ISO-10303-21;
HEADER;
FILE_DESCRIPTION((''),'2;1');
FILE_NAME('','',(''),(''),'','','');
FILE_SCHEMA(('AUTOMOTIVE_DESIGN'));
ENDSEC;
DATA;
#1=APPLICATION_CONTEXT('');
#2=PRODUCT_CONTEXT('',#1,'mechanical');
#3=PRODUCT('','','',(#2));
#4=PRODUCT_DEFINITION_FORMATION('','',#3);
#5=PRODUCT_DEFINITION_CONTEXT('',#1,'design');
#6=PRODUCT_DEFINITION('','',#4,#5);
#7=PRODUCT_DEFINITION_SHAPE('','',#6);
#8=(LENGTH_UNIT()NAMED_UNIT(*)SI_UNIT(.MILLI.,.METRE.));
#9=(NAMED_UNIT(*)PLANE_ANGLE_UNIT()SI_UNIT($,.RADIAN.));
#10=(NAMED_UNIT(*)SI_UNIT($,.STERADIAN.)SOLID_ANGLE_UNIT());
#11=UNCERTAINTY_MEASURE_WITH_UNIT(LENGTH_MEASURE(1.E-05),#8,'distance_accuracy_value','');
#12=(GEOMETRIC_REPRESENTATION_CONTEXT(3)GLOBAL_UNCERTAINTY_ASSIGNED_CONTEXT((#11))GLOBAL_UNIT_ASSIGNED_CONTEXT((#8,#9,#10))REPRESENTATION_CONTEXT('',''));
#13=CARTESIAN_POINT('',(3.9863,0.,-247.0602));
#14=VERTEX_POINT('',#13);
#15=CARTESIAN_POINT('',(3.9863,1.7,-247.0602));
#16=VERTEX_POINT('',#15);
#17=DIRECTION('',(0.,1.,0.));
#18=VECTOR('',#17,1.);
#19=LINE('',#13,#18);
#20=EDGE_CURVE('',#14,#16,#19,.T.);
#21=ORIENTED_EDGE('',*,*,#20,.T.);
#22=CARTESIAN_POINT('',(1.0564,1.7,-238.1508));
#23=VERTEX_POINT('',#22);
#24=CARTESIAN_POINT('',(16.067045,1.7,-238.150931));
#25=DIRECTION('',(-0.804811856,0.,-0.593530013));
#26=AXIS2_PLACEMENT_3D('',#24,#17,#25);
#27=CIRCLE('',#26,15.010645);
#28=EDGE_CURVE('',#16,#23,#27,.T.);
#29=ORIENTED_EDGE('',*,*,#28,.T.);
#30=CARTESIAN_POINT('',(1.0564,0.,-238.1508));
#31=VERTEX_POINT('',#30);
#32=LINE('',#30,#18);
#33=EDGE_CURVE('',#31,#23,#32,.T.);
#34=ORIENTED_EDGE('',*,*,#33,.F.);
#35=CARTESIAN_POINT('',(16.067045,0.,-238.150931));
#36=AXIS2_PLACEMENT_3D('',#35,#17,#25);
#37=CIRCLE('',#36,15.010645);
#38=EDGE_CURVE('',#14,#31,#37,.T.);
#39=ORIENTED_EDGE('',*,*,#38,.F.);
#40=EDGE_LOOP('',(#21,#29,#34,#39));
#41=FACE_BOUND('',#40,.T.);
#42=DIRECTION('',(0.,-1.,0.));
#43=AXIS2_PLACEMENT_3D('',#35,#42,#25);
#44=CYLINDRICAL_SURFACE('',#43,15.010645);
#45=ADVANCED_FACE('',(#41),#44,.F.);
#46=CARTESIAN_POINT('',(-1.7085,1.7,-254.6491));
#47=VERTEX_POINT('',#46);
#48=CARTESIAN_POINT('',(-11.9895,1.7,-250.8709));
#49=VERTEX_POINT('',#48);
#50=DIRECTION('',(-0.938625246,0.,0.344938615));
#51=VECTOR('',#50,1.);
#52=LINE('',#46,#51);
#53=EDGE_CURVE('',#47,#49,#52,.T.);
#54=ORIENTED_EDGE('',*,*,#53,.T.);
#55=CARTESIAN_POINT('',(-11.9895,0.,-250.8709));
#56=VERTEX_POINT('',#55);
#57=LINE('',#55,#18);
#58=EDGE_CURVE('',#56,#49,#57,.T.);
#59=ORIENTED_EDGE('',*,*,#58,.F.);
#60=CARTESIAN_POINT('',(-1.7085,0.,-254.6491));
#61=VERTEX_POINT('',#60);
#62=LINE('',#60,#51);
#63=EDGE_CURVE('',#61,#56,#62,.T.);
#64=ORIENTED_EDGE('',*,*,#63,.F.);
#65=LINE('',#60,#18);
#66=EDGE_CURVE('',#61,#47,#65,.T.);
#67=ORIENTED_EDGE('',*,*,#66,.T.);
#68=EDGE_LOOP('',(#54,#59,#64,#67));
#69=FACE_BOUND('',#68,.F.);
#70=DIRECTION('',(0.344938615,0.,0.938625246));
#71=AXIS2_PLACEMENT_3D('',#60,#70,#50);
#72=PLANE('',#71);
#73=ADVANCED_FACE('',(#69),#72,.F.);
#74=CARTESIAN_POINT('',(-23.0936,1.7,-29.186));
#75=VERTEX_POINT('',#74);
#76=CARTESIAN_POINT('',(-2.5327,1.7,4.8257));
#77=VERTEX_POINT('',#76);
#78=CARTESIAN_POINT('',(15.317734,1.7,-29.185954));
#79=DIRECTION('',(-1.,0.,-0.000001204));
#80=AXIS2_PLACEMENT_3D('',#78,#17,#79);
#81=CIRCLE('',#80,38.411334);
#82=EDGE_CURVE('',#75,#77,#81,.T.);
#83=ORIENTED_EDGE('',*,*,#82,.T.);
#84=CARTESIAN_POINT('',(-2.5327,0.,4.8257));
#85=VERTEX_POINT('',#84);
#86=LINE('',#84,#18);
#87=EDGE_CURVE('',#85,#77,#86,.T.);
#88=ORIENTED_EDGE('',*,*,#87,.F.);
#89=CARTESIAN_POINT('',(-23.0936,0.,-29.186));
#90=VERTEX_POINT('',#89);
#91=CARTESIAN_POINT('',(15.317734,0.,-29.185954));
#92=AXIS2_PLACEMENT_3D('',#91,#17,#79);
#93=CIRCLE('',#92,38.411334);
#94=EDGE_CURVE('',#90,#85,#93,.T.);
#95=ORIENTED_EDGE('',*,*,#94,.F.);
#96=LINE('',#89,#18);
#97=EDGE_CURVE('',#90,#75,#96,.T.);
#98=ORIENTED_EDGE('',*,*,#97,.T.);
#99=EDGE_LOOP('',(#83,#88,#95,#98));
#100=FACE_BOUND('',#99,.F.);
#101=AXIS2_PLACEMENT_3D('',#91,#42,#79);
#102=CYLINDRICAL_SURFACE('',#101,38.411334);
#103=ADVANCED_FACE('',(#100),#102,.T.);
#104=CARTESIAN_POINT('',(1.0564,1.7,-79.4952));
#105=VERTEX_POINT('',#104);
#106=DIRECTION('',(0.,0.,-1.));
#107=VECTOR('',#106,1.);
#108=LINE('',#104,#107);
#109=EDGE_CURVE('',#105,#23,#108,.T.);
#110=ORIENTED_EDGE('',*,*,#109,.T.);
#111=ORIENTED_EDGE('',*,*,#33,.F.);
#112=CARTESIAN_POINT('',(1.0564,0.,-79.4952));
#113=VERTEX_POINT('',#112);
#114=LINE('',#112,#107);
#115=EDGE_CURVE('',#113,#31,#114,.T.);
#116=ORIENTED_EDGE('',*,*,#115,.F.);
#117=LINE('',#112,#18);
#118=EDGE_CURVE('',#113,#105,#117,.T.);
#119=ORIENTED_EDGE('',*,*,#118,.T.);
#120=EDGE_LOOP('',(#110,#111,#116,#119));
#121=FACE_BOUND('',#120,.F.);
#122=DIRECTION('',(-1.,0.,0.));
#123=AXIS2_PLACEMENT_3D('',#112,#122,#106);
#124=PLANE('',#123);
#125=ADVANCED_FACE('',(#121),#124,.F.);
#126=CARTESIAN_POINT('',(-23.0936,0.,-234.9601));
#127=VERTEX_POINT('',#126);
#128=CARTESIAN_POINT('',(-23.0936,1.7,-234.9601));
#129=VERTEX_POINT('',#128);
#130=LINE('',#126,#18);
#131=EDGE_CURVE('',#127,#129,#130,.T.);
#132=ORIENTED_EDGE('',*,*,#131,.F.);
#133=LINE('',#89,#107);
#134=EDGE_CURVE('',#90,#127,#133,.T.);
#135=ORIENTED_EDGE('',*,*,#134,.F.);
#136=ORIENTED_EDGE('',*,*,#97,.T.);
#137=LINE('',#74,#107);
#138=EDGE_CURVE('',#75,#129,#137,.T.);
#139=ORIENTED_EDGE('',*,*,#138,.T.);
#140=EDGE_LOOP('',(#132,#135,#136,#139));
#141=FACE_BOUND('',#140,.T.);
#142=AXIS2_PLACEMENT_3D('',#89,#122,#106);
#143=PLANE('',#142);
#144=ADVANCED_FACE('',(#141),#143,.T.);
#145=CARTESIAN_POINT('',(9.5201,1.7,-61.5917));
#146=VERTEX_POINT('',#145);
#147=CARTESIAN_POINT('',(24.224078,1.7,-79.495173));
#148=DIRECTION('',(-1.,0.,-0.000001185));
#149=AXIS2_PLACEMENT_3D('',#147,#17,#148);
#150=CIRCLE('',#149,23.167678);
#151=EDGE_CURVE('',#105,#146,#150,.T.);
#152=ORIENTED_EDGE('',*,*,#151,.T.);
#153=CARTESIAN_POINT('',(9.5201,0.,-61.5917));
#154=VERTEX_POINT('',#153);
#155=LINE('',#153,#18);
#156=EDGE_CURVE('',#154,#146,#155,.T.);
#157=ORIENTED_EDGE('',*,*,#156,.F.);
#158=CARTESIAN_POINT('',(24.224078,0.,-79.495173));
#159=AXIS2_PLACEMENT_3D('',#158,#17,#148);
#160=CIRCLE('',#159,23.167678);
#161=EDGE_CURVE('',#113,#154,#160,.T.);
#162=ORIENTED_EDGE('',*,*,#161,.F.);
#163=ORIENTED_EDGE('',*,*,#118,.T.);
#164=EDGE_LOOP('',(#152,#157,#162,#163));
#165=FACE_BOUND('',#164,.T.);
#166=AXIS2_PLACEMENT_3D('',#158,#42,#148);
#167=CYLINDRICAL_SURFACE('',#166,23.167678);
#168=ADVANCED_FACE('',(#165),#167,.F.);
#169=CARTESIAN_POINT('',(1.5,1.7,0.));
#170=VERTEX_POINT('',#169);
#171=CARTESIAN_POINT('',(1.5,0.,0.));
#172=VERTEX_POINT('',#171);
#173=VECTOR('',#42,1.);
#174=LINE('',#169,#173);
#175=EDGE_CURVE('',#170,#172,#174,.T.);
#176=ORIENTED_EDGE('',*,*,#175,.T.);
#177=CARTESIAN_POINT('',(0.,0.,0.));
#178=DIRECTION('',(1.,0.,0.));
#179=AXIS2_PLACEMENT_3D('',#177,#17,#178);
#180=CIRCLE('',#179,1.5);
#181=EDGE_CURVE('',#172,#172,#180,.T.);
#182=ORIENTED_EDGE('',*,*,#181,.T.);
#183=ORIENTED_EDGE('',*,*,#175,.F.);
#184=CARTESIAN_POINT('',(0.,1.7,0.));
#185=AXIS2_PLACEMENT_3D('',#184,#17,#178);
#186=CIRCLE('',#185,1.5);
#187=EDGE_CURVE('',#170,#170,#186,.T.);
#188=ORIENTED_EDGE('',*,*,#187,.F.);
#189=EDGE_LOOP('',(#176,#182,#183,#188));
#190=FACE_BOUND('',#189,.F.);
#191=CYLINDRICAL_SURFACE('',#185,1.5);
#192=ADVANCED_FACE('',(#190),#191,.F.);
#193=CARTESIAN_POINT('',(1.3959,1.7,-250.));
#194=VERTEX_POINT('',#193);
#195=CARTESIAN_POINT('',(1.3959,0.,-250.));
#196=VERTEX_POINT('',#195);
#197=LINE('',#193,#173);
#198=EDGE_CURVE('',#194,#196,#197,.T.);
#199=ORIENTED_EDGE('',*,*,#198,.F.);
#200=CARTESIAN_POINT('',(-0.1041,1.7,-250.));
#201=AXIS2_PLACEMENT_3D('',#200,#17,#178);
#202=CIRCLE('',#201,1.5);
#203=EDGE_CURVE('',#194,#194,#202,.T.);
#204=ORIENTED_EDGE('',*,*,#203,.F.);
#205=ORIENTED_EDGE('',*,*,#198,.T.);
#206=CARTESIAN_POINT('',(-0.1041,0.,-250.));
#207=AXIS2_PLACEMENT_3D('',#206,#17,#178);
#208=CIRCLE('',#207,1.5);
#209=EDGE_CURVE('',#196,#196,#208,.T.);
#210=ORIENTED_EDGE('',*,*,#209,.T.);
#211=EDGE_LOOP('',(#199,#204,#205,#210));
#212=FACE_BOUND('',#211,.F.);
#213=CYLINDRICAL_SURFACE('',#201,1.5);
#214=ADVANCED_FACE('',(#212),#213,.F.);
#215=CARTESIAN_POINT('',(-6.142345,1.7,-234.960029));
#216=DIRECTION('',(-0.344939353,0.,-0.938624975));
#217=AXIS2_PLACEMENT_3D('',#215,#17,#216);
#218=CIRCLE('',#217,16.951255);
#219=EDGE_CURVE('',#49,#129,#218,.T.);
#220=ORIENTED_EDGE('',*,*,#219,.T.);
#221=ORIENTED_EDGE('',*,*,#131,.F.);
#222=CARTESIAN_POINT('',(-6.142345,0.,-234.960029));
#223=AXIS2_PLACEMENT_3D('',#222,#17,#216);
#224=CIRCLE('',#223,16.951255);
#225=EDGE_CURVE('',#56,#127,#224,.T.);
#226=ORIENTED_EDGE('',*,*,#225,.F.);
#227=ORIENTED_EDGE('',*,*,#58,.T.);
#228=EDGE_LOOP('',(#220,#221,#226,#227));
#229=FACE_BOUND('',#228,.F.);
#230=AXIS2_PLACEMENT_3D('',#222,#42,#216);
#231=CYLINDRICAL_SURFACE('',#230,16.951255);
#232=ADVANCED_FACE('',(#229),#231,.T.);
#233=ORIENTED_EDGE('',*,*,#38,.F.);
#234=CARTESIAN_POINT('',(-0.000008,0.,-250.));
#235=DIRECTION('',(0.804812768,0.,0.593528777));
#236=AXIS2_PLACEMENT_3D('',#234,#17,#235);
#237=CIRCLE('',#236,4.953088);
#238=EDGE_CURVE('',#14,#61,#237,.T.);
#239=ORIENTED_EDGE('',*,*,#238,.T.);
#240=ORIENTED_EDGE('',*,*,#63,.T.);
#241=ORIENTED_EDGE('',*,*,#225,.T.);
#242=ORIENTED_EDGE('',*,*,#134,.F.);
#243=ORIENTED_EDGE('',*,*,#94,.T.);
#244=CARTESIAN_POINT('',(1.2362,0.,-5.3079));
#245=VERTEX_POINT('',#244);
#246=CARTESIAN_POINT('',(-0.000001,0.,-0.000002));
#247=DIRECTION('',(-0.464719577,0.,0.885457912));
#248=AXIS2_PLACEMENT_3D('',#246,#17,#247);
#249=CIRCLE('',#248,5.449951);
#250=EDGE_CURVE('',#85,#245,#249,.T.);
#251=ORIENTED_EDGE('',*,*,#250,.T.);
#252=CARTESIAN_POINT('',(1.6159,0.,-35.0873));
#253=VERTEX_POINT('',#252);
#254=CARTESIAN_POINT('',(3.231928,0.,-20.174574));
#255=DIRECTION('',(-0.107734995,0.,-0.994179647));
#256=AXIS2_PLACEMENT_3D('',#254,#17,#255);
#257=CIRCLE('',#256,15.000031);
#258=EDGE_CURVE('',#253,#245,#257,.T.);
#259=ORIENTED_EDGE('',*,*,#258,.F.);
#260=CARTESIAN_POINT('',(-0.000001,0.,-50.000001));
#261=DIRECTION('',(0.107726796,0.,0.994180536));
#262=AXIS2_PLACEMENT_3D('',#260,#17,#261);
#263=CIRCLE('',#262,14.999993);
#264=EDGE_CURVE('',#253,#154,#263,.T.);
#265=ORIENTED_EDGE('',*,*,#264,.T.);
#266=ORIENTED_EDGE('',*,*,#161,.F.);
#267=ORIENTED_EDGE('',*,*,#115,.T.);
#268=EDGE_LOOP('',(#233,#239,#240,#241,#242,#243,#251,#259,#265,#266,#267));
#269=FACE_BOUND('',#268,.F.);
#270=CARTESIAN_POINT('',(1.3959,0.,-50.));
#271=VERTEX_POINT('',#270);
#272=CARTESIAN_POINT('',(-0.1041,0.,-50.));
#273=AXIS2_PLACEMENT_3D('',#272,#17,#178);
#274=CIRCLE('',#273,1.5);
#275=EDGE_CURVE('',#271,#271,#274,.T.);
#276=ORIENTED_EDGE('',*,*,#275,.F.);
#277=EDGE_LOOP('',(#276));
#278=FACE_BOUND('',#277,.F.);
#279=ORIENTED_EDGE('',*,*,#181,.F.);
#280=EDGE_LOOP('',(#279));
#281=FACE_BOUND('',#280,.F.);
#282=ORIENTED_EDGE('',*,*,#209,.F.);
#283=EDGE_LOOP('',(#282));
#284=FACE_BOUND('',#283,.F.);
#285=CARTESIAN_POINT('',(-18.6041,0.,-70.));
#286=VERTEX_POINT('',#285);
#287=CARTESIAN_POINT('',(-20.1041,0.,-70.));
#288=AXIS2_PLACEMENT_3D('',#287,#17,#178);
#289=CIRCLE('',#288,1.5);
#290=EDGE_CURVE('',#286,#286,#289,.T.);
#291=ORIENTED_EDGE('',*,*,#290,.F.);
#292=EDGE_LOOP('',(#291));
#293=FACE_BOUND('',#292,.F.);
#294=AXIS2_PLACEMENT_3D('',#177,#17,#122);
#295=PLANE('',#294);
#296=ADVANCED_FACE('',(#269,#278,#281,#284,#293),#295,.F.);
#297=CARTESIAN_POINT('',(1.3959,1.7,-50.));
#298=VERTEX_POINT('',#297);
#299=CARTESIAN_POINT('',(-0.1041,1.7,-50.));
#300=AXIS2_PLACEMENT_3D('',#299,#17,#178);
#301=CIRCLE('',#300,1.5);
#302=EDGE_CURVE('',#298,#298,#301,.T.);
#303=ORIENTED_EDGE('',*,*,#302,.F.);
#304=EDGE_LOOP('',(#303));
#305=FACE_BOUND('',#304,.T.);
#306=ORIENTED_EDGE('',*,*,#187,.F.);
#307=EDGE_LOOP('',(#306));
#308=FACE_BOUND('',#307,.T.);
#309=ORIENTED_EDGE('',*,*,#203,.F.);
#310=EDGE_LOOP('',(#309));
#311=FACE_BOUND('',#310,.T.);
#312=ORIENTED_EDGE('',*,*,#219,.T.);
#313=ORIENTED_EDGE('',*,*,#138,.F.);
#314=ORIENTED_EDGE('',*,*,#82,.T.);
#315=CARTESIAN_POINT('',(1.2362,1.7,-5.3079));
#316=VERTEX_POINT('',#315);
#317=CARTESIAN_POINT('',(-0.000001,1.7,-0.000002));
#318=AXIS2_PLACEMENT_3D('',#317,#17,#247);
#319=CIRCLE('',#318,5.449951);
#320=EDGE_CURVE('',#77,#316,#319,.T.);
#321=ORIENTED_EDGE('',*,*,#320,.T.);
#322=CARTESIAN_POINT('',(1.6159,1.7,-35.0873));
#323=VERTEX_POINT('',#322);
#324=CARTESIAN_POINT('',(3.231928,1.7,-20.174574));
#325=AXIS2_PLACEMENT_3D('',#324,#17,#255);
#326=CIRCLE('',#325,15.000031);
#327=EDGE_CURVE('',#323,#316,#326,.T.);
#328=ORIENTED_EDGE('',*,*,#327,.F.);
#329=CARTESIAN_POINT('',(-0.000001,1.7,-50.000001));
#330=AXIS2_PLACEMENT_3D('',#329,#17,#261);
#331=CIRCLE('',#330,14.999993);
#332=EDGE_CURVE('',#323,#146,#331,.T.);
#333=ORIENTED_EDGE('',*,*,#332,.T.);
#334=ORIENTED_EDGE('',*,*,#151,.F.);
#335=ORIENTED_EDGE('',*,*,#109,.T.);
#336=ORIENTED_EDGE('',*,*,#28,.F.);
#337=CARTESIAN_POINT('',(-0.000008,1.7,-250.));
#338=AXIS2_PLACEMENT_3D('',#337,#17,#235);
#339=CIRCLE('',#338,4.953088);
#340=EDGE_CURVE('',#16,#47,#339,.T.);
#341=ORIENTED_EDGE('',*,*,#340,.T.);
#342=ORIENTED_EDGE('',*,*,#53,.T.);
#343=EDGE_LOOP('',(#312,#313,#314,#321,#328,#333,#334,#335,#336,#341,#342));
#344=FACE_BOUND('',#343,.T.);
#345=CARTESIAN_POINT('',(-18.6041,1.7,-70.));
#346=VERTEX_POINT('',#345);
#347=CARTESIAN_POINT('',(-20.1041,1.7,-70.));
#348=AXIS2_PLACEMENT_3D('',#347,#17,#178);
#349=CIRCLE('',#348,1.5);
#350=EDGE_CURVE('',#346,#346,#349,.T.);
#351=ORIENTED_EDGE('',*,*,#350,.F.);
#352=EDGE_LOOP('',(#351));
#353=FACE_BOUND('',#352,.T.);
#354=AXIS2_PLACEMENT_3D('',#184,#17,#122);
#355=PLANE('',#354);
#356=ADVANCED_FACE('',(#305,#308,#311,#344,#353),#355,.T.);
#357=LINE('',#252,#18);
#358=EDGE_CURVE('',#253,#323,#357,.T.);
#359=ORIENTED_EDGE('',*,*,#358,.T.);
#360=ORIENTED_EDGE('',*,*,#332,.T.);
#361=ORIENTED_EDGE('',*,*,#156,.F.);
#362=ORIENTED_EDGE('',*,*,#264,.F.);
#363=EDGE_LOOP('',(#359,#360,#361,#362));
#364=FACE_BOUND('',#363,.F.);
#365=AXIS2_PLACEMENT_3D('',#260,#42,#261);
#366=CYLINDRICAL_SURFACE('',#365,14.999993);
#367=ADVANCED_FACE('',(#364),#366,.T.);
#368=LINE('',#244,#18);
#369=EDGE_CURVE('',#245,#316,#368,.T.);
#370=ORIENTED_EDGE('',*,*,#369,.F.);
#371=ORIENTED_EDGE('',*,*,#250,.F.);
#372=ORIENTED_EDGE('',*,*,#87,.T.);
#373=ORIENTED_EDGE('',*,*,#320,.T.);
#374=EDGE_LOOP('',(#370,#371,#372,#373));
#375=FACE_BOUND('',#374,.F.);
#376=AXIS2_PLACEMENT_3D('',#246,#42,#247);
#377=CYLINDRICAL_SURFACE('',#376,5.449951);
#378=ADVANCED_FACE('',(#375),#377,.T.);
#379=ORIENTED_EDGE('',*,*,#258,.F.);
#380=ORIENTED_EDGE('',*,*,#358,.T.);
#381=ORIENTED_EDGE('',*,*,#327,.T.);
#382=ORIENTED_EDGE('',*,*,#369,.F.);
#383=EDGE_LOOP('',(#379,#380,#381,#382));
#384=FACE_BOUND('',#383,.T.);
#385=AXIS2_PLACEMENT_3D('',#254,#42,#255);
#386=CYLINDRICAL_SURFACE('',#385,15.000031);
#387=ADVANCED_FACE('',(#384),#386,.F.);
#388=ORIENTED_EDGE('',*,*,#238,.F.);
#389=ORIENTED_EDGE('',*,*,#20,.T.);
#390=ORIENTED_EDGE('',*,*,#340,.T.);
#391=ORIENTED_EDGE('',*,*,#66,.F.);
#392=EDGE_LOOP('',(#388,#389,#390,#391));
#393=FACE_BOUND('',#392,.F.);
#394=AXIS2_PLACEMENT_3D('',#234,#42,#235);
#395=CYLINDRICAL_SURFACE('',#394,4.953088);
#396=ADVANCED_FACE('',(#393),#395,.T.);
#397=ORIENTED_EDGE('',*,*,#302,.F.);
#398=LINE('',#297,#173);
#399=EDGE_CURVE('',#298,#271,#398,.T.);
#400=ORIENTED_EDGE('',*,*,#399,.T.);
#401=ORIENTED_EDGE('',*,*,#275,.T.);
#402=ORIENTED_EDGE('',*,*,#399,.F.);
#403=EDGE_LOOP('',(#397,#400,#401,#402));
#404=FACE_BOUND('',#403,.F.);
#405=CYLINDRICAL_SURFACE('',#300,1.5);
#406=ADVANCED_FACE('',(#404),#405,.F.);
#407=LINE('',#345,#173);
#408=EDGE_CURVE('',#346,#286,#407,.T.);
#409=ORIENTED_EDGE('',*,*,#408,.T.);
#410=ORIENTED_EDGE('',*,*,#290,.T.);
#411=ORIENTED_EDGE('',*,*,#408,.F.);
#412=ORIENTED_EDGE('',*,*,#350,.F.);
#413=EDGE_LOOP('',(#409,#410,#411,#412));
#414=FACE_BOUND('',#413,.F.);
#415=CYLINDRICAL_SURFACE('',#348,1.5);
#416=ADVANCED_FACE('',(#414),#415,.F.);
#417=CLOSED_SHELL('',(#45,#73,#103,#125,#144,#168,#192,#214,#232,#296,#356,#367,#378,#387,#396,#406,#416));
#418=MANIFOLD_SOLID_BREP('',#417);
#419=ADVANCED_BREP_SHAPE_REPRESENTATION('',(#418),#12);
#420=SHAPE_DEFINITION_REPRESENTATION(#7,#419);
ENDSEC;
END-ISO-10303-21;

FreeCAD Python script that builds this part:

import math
import FreeCAD as App
import Part
import Sketcher
from FreeCAD import Vector

doc = App.newDocument("Part")
body = doc.addObject("PartDesign::Body", "Body")

# Sketch on XZ plane
sketch1 = body.newObject("Sketcher::SketchObject", "Sketch")
sketch1.AttachmentSupport = (doc.getObject("XZ_Plane"), [""])
sketch1.MapMode = "FlatFace"
sketch1.addGeometry(Part.ArcOfCircle(Part.Circle(Vector(15.3, -29.2, 0), Vector(0, 0, 1), 38.4), math.radians(118), math.radians(180)), False)
sketch1.addGeometry(Part.ArcOfCircle(Part.Circle(Vector(0, 0, 0), Vector(0, 0, 1), 5.4), math.radians(-77), math.radians(118)), False)
sketch1.addGeometry(Part.ArcOfCircle(Part.Circle(Vector(3.2, -20.2, 0), Vector(0, 0, 1), 15), math.radians(98), math.radians(264)), False)
sketch1.addGeometry(Part.ArcOfCircle(Part.Circle(Vector(0, -50, 0), Vector(0, 0, 1), 15), math.radians(-51), math.radians(84)), False)
sketch1.addGeometry(Part.ArcOfCircle(Part.Circle(Vector(24.2, -79.5, 0), Vector(0, 0, 1), 23.2), math.radians(129), math.radians(180)), False)
sketch1.addGeometry(Part.LineSegment(Vector(1.1, -79.5, 0), Vector(1.1, -238.2, 0)), False)
sketch1.addGeometry(Part.ArcOfCircle(Part.Circle(Vector(16.1, -238.2, 0), Vector(0, 0, 1), 15), math.radians(180), math.radians(216)), False)
sketch1.addGeometry(Part.ArcOfCircle(Part.Circle(Vector(0, -250, 0), Vector(0, 0, 1), 5), math.radians(-110), math.radians(36)), False)
sketch1.addGeometry(Part.LineSegment(Vector(-1.7, -254.6, 0), Vector(-12, -250.9, 0)), False)
sketch1.addGeometry(Part.ArcOfCircle(Part.Circle(Vector(-6.1, -235, 0), Vector(0, 0, 1), 17), math.radians(180), math.radians(250)), False)
sketch1.addGeometry(Part.LineSegment(Vector(-23.1, -235, 0), Vector(-23.1, -29.2, 0)), False)
sketch1.addConstraint(Sketcher.Constraint("Tangent", 0, 1, 1, 2))
sketch1.addConstraint(Sketcher.Constraint("Coincident", 1, 1, 2, 1))
sketch1.addConstraint(Sketcher.Constraint("Tangent", 2, 2, 3, 2))
sketch1.addConstraint(Sketcher.Constraint("Tangent", 3, 1, 4, 1))
sketch1.addConstraint(Sketcher.Constraint("Tangent", 4, 2, 5, 1))
sketch1.addConstraint(Sketcher.Constraint("Tangent", 5, 2, 6, 1))
sketch1.addConstraint(Sketcher.Constraint("Tangent", 6, 2, 7, 2))
sketch1.addConstraint(Sketcher.Constraint("Tangent", 7, 1, 8, 1))
sketch1.addConstraint(Sketcher.Constraint("Tangent", 8, 2, 9, 2))
sketch1.addConstraint(Sketcher.Constraint("Tangent", 9, 1, 10, 1))
sketch1.addConstraint(Sketcher.Constraint("Tangent", 10, 2, 0, 2))
sketch1.addConstraint(Sketcher.Constraint("Vertical", 5))
sketch1.addConstraint(Sketcher.Constraint("Vertical", 10))
sketch1.addConstraint(Sketcher.Constraint("Coincident", 1, 3, -1, 1))
sketch1.addConstraint(Sketcher.Constraint("Equal", 2, 3))
sketch1.addConstraint(Sketcher.Constraint("PointOnObject", 3, 3, -2))
sketch1.addConstraint(Sketcher.Constraint("PointOnObject", 7, 3, -2))
sketch1.addConstraint(Sketcher.Constraint("Radius", 2, 15.0))
sketch1.addConstraint(Sketcher.Constraint("Radius", 1, 5.45))
sketch1.addConstraint(Sketcher.Constraint("DistanceY", 3, 3, -1, 1, 50.0))
sketch1.addConstraint(Sketcher.Constraint("DistanceY", 7, 3, 3, 3, 200.0))
sketch1.addConstraint(Sketcher.Constraint("Radius", 6, 15.011))
sketch1.addConstraint(Sketcher.Constraint("Radius", 7, 4.953))
sketch1.addConstraint(Sketcher.Constraint("Radius", 0, 38.4115))
sketch1.addConstraint(Sketcher.Constraint("Radius", 4, 23.1678))
sketch1.addConstraint(Sketcher.Constraint("Radius", 9, 16.9512))
sketch1.addConstraint(Sketcher.Constraint("DistanceY", 6, 2, 9, 3, 12.1))
sketch1.addConstraint(Sketcher.Constraint("DistanceY", 10, 1, 10, 2, 205.774))
sketch1.addConstraint(Sketcher.Constraint("DistanceY", 9, 3, -1, 1, 234.96))
sketch1.addConstraint(Sketcher.Constraint("DistanceX", -1, 1, 2, 3, 3.232))
pad1 = body.newObject("PartDesign::Pad", "Pad")
pad1.Profile = sketch1
pad1.Length = 1.7
pad1.Reversed = True

# Sketch on XZ plane
sketch2 = body.newObject("Sketcher::SketchObject", "Sketch001")
sketch2.AttachmentSupport = (doc.getObject("XZ_Plane"), [""])
sketch2.MapMode = "FlatFace"
sketch2.AttachmentOffset = App.Placement(Vector(0, 0, -1.7), App.Rotation())
sketch2.addGeometry(Part.Circle(Vector(0, 0, 0), Vector(0, 0, 1), 1.5), False)
sketch2.addGeometry(Part.Circle(Vector(-0.1, -50, 0), Vector(0, 0, 1), 1.5), False)
sketch2.addGeometry(Part.Circle(Vector(-20.1, -70, 0), Vector(0, 0, 1), 1.5), False)
sketch2.addGeometry(Part.Circle(Vector(-0.1, -250, 0), Vector(0, 0, 1), 1.5), False)
sketch2.addConstraint(Sketcher.Constraint("Coincident", 0, 3, -1, 1))
sketch2.addConstraint(Sketcher.Constraint("Equal", 0, 1))
sketch2.addConstraint(Sketcher.Constraint("Equal", 1, 2))
sketch2.addConstraint(Sketcher.Constraint("Equal", 2, 3))
sketch2.addConstraint(Sketcher.Constraint("Vertical", 1, 3, 3, 3))
sketch2.addConstraint(Sketcher.Constraint("Diameter", 0, 3.0))
sketch2.addConstraint(Sketcher.Constraint("DistanceX", 2, 3, 1, 3, 20.0))
sketch2.addConstraint(Sketcher.Constraint("DistanceY", 2, 3, 1, 3, 20.0))
sketch2.addConstraint(Sketcher.Constraint("DistanceY", 1, 3, -1, 1, 50.0))
sketch2.addConstraint(Sketcher.Constraint("DistanceY", 3, 3, -1, 1, 250.0))
sketch2.addConstraint(Sketcher.Constraint("DistanceX", 1, 3, -1, 1, 0.104))
pocket1 = body.newObject("PartDesign::Pocket", "Pocket")
pocket1.Profile = sketch2
pocket1.Length = 1.7
pocket1.Reversed = True

doc.recompute()
